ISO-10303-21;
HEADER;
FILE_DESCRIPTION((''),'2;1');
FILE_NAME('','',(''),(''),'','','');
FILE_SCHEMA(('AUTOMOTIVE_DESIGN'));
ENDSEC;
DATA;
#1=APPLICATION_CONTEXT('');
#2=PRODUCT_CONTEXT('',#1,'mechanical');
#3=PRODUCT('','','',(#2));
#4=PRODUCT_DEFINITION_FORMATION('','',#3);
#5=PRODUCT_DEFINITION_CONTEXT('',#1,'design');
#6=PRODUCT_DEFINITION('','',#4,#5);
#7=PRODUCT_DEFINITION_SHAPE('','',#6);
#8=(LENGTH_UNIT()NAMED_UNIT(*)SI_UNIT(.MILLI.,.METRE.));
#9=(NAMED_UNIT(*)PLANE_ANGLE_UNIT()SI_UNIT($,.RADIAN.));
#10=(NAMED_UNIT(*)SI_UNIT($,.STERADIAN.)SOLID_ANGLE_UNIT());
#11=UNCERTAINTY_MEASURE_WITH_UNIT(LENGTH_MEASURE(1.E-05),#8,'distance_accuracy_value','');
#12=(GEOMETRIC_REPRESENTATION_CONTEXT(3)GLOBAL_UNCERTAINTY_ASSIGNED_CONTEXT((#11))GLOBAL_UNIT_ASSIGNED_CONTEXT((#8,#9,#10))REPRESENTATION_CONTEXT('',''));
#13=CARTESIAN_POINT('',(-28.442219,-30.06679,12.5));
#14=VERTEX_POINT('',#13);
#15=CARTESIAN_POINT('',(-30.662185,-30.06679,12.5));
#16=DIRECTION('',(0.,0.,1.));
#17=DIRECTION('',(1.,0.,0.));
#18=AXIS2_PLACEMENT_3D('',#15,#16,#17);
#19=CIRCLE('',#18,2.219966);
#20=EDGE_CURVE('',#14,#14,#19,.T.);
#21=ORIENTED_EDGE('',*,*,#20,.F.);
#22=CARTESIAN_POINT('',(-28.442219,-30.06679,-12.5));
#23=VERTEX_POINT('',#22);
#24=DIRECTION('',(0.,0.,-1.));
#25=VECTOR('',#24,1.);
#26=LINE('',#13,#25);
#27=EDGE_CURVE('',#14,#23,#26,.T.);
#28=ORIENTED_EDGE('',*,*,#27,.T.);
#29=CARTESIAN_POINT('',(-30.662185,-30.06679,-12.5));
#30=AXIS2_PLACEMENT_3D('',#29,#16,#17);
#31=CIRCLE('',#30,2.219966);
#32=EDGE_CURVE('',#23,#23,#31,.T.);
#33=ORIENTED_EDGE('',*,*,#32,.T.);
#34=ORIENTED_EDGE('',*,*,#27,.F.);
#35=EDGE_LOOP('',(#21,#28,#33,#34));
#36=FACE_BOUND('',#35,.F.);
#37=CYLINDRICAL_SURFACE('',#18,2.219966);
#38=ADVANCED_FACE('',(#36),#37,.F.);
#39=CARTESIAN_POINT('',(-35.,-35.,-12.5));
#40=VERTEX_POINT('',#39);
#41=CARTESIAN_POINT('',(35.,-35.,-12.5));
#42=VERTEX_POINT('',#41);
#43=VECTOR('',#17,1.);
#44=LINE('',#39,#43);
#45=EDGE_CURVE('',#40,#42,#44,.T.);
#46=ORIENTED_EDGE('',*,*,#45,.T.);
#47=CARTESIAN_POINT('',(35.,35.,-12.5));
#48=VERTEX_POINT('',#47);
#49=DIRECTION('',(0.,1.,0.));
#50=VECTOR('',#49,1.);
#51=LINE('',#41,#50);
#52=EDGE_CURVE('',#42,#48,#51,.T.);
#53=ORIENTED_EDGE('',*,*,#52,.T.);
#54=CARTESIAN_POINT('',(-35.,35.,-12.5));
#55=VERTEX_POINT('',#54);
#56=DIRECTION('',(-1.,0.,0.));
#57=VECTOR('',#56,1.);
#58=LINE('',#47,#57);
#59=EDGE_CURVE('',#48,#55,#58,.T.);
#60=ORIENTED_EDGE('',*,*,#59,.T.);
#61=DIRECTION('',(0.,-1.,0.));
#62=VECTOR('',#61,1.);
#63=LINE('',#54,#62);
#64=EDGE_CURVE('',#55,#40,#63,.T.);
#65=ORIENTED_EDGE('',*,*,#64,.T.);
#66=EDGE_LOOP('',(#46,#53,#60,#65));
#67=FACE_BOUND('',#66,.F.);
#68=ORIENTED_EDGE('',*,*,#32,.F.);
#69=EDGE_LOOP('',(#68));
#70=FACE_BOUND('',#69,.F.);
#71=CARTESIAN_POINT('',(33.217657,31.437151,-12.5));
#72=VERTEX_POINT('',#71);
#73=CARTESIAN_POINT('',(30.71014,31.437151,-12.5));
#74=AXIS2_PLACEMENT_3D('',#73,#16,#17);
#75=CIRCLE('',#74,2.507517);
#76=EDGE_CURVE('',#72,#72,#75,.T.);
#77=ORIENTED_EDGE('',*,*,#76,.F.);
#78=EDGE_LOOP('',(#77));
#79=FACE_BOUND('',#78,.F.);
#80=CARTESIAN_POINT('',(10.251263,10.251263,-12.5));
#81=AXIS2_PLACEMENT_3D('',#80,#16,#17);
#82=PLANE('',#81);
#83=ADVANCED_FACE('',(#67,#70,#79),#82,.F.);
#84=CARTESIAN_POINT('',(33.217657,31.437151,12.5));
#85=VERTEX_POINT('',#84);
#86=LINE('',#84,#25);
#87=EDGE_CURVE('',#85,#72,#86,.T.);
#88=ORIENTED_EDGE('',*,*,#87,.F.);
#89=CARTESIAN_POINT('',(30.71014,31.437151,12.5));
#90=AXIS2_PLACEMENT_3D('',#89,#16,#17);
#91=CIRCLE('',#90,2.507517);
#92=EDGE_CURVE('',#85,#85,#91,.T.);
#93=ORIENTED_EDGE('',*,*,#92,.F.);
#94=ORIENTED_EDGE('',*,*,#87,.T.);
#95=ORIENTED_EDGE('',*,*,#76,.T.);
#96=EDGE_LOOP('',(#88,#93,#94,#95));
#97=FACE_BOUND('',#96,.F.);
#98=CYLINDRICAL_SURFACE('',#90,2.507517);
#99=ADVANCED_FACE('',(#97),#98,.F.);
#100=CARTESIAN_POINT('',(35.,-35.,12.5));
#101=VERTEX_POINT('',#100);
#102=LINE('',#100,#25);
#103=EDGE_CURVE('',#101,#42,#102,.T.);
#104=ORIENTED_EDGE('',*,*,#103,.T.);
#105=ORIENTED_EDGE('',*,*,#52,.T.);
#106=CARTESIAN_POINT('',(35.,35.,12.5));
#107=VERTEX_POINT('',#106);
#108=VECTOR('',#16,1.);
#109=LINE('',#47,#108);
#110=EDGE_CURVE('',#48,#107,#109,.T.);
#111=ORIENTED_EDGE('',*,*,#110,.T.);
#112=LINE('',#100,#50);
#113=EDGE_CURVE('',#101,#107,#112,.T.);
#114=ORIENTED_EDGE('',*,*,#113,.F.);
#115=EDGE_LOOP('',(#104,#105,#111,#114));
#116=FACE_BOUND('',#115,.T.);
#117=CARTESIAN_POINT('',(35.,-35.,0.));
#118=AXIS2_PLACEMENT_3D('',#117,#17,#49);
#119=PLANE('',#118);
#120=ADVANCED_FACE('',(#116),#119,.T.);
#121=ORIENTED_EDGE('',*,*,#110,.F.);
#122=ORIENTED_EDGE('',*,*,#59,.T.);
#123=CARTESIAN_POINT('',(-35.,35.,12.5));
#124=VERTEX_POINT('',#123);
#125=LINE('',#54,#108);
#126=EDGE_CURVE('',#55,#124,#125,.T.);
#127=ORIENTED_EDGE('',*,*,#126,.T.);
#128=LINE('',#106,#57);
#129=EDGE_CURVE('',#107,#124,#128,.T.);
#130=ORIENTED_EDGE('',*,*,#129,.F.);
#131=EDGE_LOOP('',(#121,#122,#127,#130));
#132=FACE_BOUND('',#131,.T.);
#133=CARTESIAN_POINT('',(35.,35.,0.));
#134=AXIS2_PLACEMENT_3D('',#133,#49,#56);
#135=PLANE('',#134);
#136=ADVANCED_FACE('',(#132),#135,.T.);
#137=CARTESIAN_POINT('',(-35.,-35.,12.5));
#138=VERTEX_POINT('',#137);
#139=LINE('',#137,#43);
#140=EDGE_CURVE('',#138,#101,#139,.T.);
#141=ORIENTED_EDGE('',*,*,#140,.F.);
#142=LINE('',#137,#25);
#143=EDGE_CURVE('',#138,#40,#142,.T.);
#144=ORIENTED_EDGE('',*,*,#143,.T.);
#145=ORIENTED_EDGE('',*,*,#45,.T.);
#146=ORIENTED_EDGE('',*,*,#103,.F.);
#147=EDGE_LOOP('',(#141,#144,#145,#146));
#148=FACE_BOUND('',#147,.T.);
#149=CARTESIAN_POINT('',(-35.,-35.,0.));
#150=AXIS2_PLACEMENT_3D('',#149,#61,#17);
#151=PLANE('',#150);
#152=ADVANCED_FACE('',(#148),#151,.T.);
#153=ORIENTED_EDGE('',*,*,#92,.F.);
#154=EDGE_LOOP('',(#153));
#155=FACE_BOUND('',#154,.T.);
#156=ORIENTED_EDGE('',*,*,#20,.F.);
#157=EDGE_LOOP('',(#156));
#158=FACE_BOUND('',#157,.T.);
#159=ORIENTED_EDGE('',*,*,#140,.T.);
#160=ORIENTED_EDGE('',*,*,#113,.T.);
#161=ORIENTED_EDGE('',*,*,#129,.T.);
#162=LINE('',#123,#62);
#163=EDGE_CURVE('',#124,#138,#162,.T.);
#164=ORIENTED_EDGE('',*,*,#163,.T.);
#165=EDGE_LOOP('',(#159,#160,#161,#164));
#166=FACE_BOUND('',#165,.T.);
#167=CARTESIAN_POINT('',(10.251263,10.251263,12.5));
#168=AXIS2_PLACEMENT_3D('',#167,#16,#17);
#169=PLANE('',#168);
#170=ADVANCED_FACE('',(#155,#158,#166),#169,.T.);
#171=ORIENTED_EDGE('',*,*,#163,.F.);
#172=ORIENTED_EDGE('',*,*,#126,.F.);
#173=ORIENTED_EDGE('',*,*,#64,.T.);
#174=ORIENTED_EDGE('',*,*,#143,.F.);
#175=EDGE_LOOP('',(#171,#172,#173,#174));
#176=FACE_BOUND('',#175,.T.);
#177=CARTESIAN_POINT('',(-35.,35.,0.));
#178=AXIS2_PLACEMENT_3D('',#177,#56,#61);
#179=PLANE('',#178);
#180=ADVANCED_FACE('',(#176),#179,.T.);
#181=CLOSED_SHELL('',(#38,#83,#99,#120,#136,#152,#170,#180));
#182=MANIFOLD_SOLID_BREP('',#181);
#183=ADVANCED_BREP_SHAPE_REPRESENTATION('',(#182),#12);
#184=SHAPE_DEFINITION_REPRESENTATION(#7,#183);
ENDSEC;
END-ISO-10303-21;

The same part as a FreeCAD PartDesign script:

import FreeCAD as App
import Part
import Sketcher

V = App.Vector
Q = App.Units.Quantity


def add_polygon(sketch, points):
    """Adds a closed chain of lines whose ends are joined by coincident constraints."""
    first, n = sketch.GeometryCount, len(points)
    for a, b in zip(points, points[1:] + points[:1]):
        sketch.addGeometry(Part.LineSegment(App.Vector(*a, 0), App.Vector(*b, 0)), False)
    for i in range(n):
        sketch.addConstraint(Sketcher.Constraint("Coincident", first + i, 2, first + (i + 1) % n, 1))

doc = App.newDocument("Part")
body = doc.addObject("PartDesign::Body", "Body")

# Sketch on XY plane
sketch1 = body.newObject("Sketcher::SketchObject", "Sketch")
sketch1.AttachmentSupport = (doc.getObject("XY_Plane"), [""])
sketch1.MapMode = "FlatFace"
add_polygon(sketch1, [(35, -35), (35, 35), (-35, 35), (-35, -35)])  # lines 0-3
sketch1.addConstraint(Sketcher.Constraint("Vertical", 0))
sketch1.addConstraint(Sketcher.Constraint("Horizontal", 1))
sketch1.addConstraint(Sketcher.Constraint("Vertical", 2))
sketch1.addConstraint(Sketcher.Constraint("Horizontal", 3))
sketch1.addConstraint(Sketcher.Constraint("Symmetric", 0, 2, 2, 2, -1, 1))
sketch1.addConstraint(Sketcher.Constraint("Equal", 3, 0))
sketch1.addConstraint(Sketcher.Constraint("DistanceX", 1, 2, 1, 1, Q("70 mm")))
pad1 = body.newObject("PartDesign::Pad", "Pad")
pad1.Profile = sketch1
pad1.Length = 25
pad1.Midplane = True

# Sketch on XY plane
sketch2 = body.newObject("Sketcher::SketchObject", "Sketch001")
sketch2.AttachmentSupport = (doc.getObject("XY_Plane"), [""])
sketch2.MapMode = "FlatFace"
sketch2.AttachmentOffset = App.Placement(V(0, 0, 12.5), App.Rotation())
sketch2.addGeometry(Part.Circle(V(-30.7, -30.1, 0), V(0, 0, 1), 2.2), False)
sketch2.addGeometry(Part.Circle(V(30.7, 31.4, 0), V(0, 0, 1), 2.5), False)
sketch2.addConstraint(Sketcher.Constraint("Diameter", 0, Q("4.439932 mm")))
sketch2.addConstraint(Sketcher.Constraint("Diameter", 1, Q("5.015034 mm")))
sketch2.addConstraint(Sketcher.Constraint("DistanceY", 0, 3, -1, 1, Q("30.06679 mm")))
sketch2.addConstraint(Sketcher.Constraint("DistanceX", -1, 1, 1, 3, Q("30.71014 mm")))
sketch2.addConstraint(Sketcher.Constraint("DistanceY", -1, 1, 1, 3, Q("31.437151 mm")))
sketch2.addConstraint(Sketcher.Constraint("DistanceX", 0, 3, -1, 1, Q("30.662185 mm")))
pocket1 = body.newObject("PartDesign::Pocket", "Pocket")
pocket1.Profile = sketch2
pocket1.Length = 26

doc.recompute()
